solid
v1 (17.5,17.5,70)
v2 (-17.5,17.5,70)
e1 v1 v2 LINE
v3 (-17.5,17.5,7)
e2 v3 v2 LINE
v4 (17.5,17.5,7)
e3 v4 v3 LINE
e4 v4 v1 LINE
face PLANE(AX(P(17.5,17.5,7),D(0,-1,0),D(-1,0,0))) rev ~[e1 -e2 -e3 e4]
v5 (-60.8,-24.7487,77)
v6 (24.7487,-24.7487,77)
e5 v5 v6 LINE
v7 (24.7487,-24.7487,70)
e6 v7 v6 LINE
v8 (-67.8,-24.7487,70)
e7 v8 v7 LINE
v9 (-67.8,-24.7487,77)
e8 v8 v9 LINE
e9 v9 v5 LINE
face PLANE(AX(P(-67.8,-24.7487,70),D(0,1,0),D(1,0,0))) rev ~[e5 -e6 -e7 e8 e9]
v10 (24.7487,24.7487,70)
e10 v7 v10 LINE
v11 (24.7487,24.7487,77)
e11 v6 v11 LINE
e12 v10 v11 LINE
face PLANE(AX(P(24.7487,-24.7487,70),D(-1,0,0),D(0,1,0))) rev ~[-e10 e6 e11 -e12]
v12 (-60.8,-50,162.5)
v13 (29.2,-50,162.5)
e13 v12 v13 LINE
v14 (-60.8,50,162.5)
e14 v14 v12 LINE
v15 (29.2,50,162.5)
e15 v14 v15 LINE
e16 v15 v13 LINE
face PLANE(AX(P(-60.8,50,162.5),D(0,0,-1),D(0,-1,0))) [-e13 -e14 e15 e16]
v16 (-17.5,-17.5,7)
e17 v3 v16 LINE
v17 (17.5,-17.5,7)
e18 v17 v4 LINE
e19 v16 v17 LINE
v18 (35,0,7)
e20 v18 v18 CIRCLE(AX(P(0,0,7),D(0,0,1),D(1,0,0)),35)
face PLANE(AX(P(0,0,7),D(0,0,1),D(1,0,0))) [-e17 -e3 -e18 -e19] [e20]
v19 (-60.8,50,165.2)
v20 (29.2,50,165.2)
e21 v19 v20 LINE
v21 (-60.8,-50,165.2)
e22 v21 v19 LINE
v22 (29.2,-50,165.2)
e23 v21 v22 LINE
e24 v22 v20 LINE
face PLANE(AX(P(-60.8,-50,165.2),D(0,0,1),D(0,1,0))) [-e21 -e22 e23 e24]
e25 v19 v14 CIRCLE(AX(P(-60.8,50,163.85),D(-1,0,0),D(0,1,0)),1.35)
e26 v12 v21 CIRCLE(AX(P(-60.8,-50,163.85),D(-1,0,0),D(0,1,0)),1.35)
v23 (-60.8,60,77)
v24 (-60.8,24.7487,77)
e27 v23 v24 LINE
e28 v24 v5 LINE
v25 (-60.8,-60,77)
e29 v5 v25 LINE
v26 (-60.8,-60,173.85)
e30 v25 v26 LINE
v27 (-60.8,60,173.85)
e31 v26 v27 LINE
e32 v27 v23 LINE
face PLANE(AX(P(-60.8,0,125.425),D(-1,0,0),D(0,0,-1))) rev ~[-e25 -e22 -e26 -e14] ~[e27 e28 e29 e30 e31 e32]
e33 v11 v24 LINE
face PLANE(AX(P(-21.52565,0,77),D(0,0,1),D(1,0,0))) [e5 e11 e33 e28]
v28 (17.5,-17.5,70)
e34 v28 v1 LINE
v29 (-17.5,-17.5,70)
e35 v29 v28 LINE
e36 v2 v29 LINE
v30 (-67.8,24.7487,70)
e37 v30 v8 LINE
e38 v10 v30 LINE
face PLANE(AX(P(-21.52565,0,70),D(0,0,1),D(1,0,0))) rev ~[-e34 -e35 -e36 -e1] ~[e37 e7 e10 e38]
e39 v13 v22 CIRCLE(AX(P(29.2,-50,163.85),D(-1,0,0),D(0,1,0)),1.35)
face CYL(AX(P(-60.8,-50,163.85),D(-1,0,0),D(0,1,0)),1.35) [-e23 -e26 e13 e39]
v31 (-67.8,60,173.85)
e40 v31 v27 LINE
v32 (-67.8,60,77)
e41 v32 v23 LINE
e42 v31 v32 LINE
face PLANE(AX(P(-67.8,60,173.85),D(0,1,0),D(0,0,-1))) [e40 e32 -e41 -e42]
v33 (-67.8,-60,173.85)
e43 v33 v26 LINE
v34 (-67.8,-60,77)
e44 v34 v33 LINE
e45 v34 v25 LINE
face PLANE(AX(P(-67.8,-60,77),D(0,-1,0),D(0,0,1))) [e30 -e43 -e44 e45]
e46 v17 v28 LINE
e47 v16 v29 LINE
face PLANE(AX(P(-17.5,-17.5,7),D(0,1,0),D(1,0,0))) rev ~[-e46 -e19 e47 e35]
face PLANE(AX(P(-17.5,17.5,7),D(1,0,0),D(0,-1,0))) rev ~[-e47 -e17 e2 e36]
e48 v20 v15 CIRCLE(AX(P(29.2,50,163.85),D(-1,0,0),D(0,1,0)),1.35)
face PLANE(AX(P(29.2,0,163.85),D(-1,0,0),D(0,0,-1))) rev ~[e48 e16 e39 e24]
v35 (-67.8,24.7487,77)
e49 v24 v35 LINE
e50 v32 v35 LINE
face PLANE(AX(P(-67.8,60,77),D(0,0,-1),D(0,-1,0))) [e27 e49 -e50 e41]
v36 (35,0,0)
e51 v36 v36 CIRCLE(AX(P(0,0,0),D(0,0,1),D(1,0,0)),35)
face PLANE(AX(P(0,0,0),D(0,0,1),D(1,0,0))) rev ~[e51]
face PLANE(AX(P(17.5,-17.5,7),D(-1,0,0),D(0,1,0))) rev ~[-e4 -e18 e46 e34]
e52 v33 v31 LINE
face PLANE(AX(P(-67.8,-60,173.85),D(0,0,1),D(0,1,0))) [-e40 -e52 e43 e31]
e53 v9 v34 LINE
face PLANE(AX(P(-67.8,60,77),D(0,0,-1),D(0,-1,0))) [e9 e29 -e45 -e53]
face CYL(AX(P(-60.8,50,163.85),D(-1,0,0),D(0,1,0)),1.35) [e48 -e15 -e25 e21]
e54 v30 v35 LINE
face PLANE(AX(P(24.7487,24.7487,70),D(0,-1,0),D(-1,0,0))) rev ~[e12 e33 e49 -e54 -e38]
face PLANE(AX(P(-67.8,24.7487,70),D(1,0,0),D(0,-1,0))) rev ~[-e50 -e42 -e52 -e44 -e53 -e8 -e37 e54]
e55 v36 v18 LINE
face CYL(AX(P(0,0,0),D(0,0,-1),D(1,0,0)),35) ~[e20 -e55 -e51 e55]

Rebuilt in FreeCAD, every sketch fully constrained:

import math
import FreeCAD as App
import Part
import Sketcher

V = App.Vector

doc = App.newDocument("Part")
body = doc.addObject("PartDesign::Body", "Body")

# Sketch on XY plane
sketch1 = body.newObject("Sketcher::SketchObject", "Sketch")
sketch1.AttachmentSupport = (doc.getObject("XY_Plane"), [""])
sketch1.MapMode = "FlatFace"
sketch1.addGeometry(Part.Circle(V(0, 0, 0), V(0, 0, 1), 35), False)
sketch1.addConstraint(Sketcher.Constraint("Coincident", 0, 3, -1, 1))
sketch1.addConstraint(Sketcher.Constraint("Diameter", 0, 70.0))
pad1 = body.newObject("PartDesign::Pad", "Pad")
pad1.Profile = sketch1
pad1.Length = 7

# Sketch on XY plane
sketch2 = body.newObject("Sketcher::SketchObject", "Sketch001")
sketch2.AttachmentSupport = (doc.getObject("XY_Plane"), [""])
sketch2.MapMode = "FlatFace"
sketch2.AttachmentOffset = App.Placement(V(0, 0, 7), App.Rotation())
sketch2.addGeometry(Part.LineSegment(V(-18, 18, 0), V(-18, -18, 0)), False)
sketch2.addGeometry(Part.LineSegment(V(-18, -18, 0), V(18, -18, 0)), False)
sketch2.addGeometry(Part.LineSegment(V(18, -18, 0), V(18, 18, 0)), False)
sketch2.addGeometry(Part.LineSegment(V(18, 18, 0), V(-18, 18, 0)), False)
sketch2.addConstraint(Sketcher.Constraint("Coincident", 0, 2, 1, 1))
sketch2.addConstraint(Sketcher.Constraint("Coincident", 1, 2, 2, 1))
sketch2.addConstraint(Sketcher.Constraint("Coincident", 2, 2, 3, 1))
sketch2.addConstraint(Sketcher.Constraint("Coincident", 3, 2, 0, 1))
sketch2.addConstraint(Sketcher.Constraint("Vertical", 0))
sketch2.addConstraint(Sketcher.Constraint("Horizontal", 1))
sketch2.addConstraint(Sketcher.Constraint("Vertical", 2))
sketch2.addConstraint(Sketcher.Constraint("Horizontal", 3))
sketch2.addConstraint(Sketcher.Constraint("Symmetric", 0, 2, 2, 2, -1, 1))
sketch2.addConstraint(Sketcher.Constraint("Equal", 3, 0))
sketch2.addConstraint(Sketcher.Constraint("DistanceX", 0, 2, -1, 1, 17.5))
pad2 = body.newObject("PartDesign::Pad", "Pad001")
pad2.Profile = sketch2
pad2.Length = 63

# Sketch on XY plane
sketch3 = body.newObject("Sketcher::SketchObject", "Sketch002")
sketch3.AttachmentSupport = (doc.getObject("XY_Plane"), [""])
sketch3.MapMode = "FlatFace"
sketch3.AttachmentOffset = App.Placement(V(0, 0, 70), App.Rotation())
sketch3.addGeometry(Part.LineSegment(V(-68, 25, 0), V(-68, -25, 0)), False)
sketch3.addGeometry(Part.LineSegment(V(-68, -25, 0), V(25, -25, 0)), False)
sketch3.addGeometry(Part.LineSegment(V(25, -25, 0), V(25, 25, 0)), False)
sketch3.addGeometry(Part.LineSegment(V(25, 25, 0), V(-68, 25, 0)), False)
sketch3.addConstraint(Sketcher.Constraint("Coincident", 0, 2, 1, 1))
sketch3.addConstraint(Sketcher.Constraint("Coincident", 1, 2, 2, 1))
sketch3.addConstraint(Sketcher.Constraint("Coincident", 2, 2, 3, 1))
sketch3.addConstraint(Sketcher.Constraint("Coincident", 3, 2, 0, 1))
sketch3.addConstraint(Sketcher.Constraint("Vertical", 0))
sketch3.addConstraint(Sketcher.Constraint("Horizontal", 1))
sketch3.addConstraint(Sketcher.Constraint("Vertical", 2))
sketch3.addConstraint(Sketcher.Constraint("Horizontal", 3))
sketch3.addConstraint(Sketcher.Constraint("DistanceY", 0, 2, -1, 1, 24.7487))
sketch3.addConstraint(Sketcher.Constraint("DistanceX", -1, 1, 1, 2, 24.7487))
sketch3.addConstraint(Sketcher.Constraint("DistanceY", -1, 1, 2, 2, 24.7487))
sketch3.addConstraint(Sketcher.Constraint("DistanceX", 0, 2, -1, 1, 67.8))
pad3 = body.newObject("PartDesign::Pad", "Pad002")
pad3.Profile = sketch3
pad3.Length = 7

# Sketch on YZ plane
sketch4 = body.newObject("Sketcher::SketchObject", "Sketch003")
sketch4.AttachmentSupport = (doc.getObject("YZ_Plane"), [""])
sketch4.MapMode = "FlatFace"
sketch4.AttachmentOffset = App.Placement(V(0, 0, -67.8), App.Rotation())
sketch4.addGeometry(Part.LineSegment(V(60, 174, 0), V(60, 77, 0)), False)
sketch4.addGeometry(Part.LineSegment(V(60, 77, 0), V(-60, 77, 0)), False)
sketch4.addGeometry(Part.LineSegment(V(-60, 77, 0), V(-60, 174, 0)), False)
sketch4.addGeometry(Part.LineSegment(V(-60, 174, 0), V(60, 174, 0)), False)
sketch4.addConstraint(Sketcher.Constraint("Coincident", 0, 2, 1, 1))
sketch4.addConstraint(Sketcher.Constraint("Coincident", 1, 2, 2, 1))
sketch4.addConstraint(Sketcher.Constraint("Coincident", 2, 2, 3, 1))
sketch4.addConstraint(Sketcher.Constraint("Coincident", 3, 2, 0, 1))
sketch4.addConstraint(Sketcher.Constraint("Vertical", 0))
sketch4.addConstraint(Sketcher.Constraint("Horizontal", 1))
sketch4.addConstraint(Sketcher.Constraint("Vertical", 2))
sketch4.addConstraint(Sketcher.Constraint("Horizontal", 3))
sketch4.addConstraint(Sketcher.Constraint("DistanceX", -1, 1, 0, 2, 60.0))
sketch4.addConstraint(Sketcher.Constraint("DistanceX", 1, 2, -1, 1, 60.0))
sketch4.addConstraint(Sketcher.Constraint("DistanceY", -1, 1, 0, 2, 77.0))
sketch4.addConstraint(Sketcher.Constraint("DistanceY", 0, 2, 0, 1, 96.85))
pad4 = body.newObject("PartDesign::Pad", "Pad003")
pad4.Profile = sketch4
pad4.Length = 7

# Sketch on YZ plane
sketch5 = body.newObject("Sketcher::SketchObject", "Sketch004")
sketch5.AttachmentSupport = (doc.getObject("YZ_Plane"), [""])
sketch5.MapMode = "FlatFace"
sketch5.AttachmentOffset = App.Placement(V(0, 0, -60.8), App.Rotation())
sketch5.addGeometry(Part.LineSegment(V(50, 165.2, 0), V(-50, 165.2, 0)), False)
sketch5.addGeometry(Part.ArcOfCircle(Part.Circle(V(-50, 163.8, 0), V(0, 0, 1), 1.3), math.radians(90), math.radians(270)), False)
sketch5.addGeometry(Part.LineSegment(V(-50, 162.5, 0), V(50, 162.5, 0)), False)
sketch5.addGeometry(Part.ArcOfCircle(Part.Circle(V(50, 163.8, 0), V(0, 0, 1), 1.4), math.radians(-90), math.radians(90)), False)
sketch5.addConstraint(Sketcher.Constraint("Tangent", 0, 2, 1, 1))
sketch5.addConstraint(Sketcher.Constraint("Tangent", 1, 2, 2, 1))
sketch5.addConstraint(Sketcher.Constraint("Tangent", 2, 2, 3, 1))
sketch5.addConstraint(Sketcher.Constraint("Tangent", 3, 2, 0, 1))
sketch5.addConstraint(Sketcher.Constraint("Horizontal", 0))
sketch5.addConstraint(Sketcher.Constraint("Horizontal", 2))
sketch5.addConstraint(Sketcher.Constraint("DistanceX", 1, 3, -1, 1, 50.0))
sketch5.addConstraint(Sketcher.Constraint("DistanceX", -1, 1, 3, 3, 50.0))
sketch5.addConstraint(Sketcher.Constraint("Radius", 1, 1.35))
sketch5.addConstraint(Sketcher.Constraint("DistanceY", -1, 1, 0, 2, 165.2))
pad5 = body.newObject("PartDesign::Pad", "Pad004")
pad5.Profile = sketch5
pad5.Length = 90

doc.recompute()
